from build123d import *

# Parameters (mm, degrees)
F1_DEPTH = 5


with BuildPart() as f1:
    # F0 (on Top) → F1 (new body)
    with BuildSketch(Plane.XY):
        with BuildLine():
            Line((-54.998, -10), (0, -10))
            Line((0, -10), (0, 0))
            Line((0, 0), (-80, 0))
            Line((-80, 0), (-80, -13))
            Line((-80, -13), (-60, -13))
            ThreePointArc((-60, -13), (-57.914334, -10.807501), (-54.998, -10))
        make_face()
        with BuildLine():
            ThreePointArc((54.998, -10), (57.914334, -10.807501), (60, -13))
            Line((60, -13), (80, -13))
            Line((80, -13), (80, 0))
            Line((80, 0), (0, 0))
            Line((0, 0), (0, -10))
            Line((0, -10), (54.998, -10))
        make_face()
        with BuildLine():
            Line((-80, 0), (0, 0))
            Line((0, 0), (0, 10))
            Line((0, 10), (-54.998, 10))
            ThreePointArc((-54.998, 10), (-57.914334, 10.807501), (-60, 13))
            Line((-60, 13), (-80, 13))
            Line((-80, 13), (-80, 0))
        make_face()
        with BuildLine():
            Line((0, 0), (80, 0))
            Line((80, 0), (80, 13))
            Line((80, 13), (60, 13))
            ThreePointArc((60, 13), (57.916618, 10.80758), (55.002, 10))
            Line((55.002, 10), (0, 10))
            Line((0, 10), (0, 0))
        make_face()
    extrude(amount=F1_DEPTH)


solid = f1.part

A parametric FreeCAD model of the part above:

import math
import FreeCAD as App
import Part
import Sketcher

doc = App.newDocument("Part")
params = doc.addObject("Spreadsheet::Sheet", "Params")
for row, (alias, value) in enumerate([
    ("sketch1_width", "20 mm"),
    ("sketch1_width2", "110 mm"),
    ("sketch1_height", "26 mm"),
    ("sketch1_radius", "5.670001 mm"),
    ("pad1_length", "5 mm"),
], start=1):
    params.set(f"A{row}", alias)
    params.set(f"B{row}", "=" + value)
    params.setAlias(f"B{row}", alias)

body = doc.addObject("PartDesign::Body", "Body")

sketch1 = doc.addObject("Sketcher::SketchObject", "Sketch")
body.addObject(sketch1)
sketch1.AttachmentSupport = (doc.XY_Plane, [""])
sketch1.MapMode = "FlatFace"
sketch1.addGeometry([
    Part.LineSegment(App.Vector(-54.998, -10, 0), App.Vector(54.998, -10, 0)),
    Part.ArcOfCircle(Part.Circle(App.Vector(54.998, -15.670001, 0), App.Vector(0, 0, 1), 5.670001), math.radians(28.092705), math.radians(89.999998)),
    Part.LineSegment(App.Vector(60, -13, 0), App.Vector(80, -13, 0)),
    Part.LineSegment(App.Vector(80, -13, 0), App.Vector(80, 13, 0)),
    Part.LineSegment(App.Vector(80, 13, 0), App.Vector(60, 13, 0)),
    Part.ArcOfCircle(Part.Circle(App.Vector(55.001998, 15.663338, 0), App.Vector(0, 0, 1), 5.663338), math.radians(-89.999977), math.radians(-28.052282)),
    Part.LineSegment(App.Vector(55.002, 10, 0), App.Vector(-54.998, 10, 0)),
    Part.ArcOfCircle(Part.Circle(App.Vector(-54.998, 15.670001, 0), App.Vector(0, 0, 1), 5.670001), math.radians(-151.907295), math.radians(-90.000002)),
    Part.LineSegment(App.Vector(-60, 13, 0), App.Vector(-80, 13, 0)),
    Part.LineSegment(App.Vector(-80, 13, 0), App.Vector(-80, -13, 0)),
    Part.LineSegment(App.Vector(-80, -13, 0), App.Vector(-60, -13, 0)),
    Part.ArcOfCircle(Part.Circle(App.Vector(-54.998, -15.670001, 0), App.Vector(0, 0, 1), 5.670001), math.radians(90.000002), math.radians(151.907295)),
], False)
sketch1.addConstraint([
    Sketcher.Constraint("Tangent", 0, 2, 1, 2),
    Sketcher.Constraint("Coincident", 1, 1, 2, 1),
    Sketcher.Constraint("Coincident", 2, 2, 3, 1),
    Sketcher.Constraint("Coincident", 3, 2, 4, 1),
    Sketcher.Constraint("Coincident", 4, 2, 5, 2),
    Sketcher.Constraint("Tangent", 5, 1, 6, 1),
    Sketcher.Constraint("Tangent", 6, 2, 7, 2),
    Sketcher.Constraint("Coincident", 7, 1, 8, 1),
    Sketcher.Constraint("Coincident", 8, 2, 9, 1),
    Sketcher.Constraint("Coincident", 9, 2, 10, 1),
    Sketcher.Constraint("Coincident", 10, 2, 11, 2),
    Sketcher.Constraint("Tangent", 11, 1, 0, 1),
    Sketcher.Constraint("Horizontal", 0),
    Sketcher.Constraint("Horizontal", 2),
    Sketcher.Constraint("Vertical", 3),
    Sketcher.Constraint("Horizontal", 4),
    Sketcher.Constraint("Horizontal", 6),
    Sketcher.Constraint("Horizontal", 8),
    Sketcher.Constraint("Vertical", 9),
    Sketcher.Constraint("Horizontal", 10),
    Sketcher.Constraint("Equal", 1, 7),
    Sketcher.Constraint("Equal", 7, 11),
    Sketcher.Constraint("Symmetric", 1, 3, 7, 3, -1, 1),
    Sketcher.Constraint("Symmetric", 2, 2, 8, 2, -1, 1),
    Sketcher.Constraint("Symmetric", 4, 2, 10, 2, -1, 1),
    Sketcher.Constraint("Symmetric", 4, 2, 7, 1, -2),
    Sketcher.Constraint("DistanceX", 2, 1, 2, 2, 20.0),
    Sketcher.Constraint("DistanceX", 6, 2, 6, 1, 110.0),
    Sketcher.Constraint("DistanceY", 3, 1, 3, 2, 26.0),
    Sketcher.Constraint("Radius", 1, 5.670001),
    Sketcher.Constraint("DistanceY", 0, 2, -1, 1, 10.0),
    Sketcher.Constraint("DistanceX", -1, 1, 1, 1, 60.0),
])
sketch1.setExpression("Constraints[26]", "Params.sketch1_width")
sketch1.setExpression("Constraints[27]", "Params.sketch1_width2")
sketch1.setExpression("Constraints[28]", "Params.sketch1_height")
sketch1.setExpression("Constraints[29]", "Params.sketch1_radius")
pad1 = doc.addObject("PartDesign::Pad", "Pad")
body.addObject(pad1)
pad1.Profile = sketch1
pad1.setExpression("Length", "Params.pad1_length")

doc.recompute()
